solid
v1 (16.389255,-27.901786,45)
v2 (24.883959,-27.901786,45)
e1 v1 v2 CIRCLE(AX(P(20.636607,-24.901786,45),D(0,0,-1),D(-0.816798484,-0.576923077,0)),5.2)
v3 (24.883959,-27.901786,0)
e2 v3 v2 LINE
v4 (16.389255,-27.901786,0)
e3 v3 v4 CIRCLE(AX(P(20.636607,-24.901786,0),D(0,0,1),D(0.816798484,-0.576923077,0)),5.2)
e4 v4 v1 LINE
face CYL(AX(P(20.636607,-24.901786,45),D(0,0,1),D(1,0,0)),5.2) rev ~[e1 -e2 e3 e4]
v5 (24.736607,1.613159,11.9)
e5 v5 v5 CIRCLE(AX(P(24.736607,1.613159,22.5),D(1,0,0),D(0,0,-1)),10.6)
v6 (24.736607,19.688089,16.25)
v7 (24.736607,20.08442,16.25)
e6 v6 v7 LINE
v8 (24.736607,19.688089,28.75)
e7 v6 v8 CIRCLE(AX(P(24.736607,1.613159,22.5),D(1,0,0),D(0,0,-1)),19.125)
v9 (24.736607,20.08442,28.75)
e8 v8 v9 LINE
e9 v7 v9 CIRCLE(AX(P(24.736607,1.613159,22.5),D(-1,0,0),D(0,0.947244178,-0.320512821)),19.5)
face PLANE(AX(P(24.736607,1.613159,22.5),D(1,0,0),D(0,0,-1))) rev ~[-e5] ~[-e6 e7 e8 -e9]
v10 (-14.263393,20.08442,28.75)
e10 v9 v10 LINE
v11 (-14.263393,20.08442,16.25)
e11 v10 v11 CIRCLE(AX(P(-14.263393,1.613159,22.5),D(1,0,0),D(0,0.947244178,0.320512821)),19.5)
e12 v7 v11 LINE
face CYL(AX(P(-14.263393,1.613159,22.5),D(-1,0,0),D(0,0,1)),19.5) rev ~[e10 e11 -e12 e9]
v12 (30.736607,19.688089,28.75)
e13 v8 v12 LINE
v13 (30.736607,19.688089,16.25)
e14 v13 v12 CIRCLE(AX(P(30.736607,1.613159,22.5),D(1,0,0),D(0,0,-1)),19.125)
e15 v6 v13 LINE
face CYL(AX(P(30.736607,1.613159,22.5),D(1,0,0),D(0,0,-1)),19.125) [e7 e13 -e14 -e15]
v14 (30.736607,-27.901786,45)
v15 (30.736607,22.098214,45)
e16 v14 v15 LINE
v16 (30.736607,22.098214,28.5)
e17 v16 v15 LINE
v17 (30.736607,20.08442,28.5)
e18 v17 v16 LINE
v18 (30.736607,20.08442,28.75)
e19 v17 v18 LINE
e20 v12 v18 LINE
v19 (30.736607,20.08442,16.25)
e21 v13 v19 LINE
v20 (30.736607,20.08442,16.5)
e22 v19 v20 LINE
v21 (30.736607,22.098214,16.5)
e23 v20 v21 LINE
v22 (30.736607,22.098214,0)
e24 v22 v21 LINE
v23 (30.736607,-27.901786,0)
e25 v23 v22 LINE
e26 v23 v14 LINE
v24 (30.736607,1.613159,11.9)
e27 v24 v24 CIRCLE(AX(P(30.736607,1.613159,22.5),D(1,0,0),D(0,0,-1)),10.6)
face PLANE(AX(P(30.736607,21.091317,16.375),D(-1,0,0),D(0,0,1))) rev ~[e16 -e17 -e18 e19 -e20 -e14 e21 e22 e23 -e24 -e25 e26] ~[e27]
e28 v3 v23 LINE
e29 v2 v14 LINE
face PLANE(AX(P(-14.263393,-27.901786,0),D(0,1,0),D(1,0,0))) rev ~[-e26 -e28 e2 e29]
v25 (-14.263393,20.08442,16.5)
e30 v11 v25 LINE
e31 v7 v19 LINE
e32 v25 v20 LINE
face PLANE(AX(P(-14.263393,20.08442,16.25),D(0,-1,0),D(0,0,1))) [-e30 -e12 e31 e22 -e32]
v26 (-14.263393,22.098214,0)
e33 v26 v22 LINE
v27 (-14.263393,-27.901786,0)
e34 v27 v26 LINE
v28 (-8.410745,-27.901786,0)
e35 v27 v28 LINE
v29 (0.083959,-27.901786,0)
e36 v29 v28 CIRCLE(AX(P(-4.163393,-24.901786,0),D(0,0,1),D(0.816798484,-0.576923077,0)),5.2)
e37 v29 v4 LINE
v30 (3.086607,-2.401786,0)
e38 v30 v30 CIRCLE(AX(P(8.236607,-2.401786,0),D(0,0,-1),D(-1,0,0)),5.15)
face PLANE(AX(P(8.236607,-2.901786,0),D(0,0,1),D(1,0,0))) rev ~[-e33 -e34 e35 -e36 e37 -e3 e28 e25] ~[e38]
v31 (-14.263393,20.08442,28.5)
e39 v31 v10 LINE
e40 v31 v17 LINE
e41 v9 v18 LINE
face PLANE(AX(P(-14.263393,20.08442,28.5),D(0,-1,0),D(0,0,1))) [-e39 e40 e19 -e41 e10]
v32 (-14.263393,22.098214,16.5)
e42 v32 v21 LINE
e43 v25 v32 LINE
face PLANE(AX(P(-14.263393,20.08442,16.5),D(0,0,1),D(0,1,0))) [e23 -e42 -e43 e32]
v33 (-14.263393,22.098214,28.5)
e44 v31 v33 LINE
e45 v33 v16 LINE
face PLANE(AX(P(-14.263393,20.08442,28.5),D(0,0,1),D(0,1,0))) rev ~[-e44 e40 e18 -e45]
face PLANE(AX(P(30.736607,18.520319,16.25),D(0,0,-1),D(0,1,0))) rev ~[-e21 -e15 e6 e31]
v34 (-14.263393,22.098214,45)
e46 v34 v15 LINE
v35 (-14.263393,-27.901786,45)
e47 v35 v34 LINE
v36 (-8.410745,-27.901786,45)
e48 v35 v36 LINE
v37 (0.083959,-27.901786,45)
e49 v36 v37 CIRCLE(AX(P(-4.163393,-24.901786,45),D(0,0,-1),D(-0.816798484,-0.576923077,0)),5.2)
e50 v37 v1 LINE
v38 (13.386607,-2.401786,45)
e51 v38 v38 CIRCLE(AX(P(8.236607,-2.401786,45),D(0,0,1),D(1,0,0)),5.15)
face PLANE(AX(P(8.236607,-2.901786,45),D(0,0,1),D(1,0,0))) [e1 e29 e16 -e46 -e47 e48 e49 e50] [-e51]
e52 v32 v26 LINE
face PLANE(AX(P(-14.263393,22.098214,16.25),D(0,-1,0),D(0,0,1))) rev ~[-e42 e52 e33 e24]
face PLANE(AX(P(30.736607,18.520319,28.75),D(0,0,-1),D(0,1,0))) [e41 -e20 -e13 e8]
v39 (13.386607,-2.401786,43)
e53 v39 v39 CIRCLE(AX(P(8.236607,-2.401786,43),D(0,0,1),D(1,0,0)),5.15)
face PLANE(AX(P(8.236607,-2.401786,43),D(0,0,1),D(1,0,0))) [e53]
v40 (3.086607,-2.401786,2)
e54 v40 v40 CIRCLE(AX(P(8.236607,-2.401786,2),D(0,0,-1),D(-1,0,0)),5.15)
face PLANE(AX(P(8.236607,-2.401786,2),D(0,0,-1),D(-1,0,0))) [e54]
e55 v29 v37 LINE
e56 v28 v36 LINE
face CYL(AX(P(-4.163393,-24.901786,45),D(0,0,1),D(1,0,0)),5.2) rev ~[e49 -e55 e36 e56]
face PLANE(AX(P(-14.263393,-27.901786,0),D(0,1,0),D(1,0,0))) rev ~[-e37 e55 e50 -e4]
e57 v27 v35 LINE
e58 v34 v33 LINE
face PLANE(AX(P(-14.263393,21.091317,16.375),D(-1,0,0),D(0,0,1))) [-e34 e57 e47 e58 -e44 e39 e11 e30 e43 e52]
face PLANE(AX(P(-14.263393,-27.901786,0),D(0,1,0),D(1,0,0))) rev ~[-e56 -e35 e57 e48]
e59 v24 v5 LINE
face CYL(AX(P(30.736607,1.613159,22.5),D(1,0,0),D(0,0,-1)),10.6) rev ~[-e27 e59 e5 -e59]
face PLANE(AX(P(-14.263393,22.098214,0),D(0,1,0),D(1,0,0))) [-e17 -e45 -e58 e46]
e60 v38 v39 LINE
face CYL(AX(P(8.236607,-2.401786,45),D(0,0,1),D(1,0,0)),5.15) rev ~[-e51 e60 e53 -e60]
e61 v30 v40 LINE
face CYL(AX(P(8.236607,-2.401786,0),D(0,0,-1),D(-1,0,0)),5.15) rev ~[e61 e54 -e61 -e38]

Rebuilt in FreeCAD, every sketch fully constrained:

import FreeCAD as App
import Part
import Sketcher

doc = App.newDocument("Part")
body = doc.addObject("PartDesign::Body", "Body")

# Sketch on XY plane
sketch1 = doc.addObject("Sketcher::SketchObject", "Sketch")
body.addObject(sketch1)
sketch1.AttachmentSupport = (doc.XY_Plane, [""])
sketch1.MapMode = "FlatFace"
sketch1.addGeometry([
    Part.LineSegment(App.Vector(-14, 22, 0), App.Vector(-14, -28, 0)),
    Part.LineSegment(App.Vector(-14, -28, 0), App.Vector(31, -28, 0)),
    Part.LineSegment(App.Vector(31, -28, 0), App.Vector(31, 22, 0)),
    Part.LineSegment(App.Vector(31, 22, 0), App.Vector(-14, 22, 0)),
], False)
sketch1.addConstraint([
    Sketcher.Constraint("Coincident", 0, 2, 1, 1),
    Sketcher.Constraint("Coincident", 1, 2, 2, 1),
    Sketcher.Constraint("Coincident", 2, 2, 3, 1),
    Sketcher.Constraint("Coincident", 3, 2, 0, 1),
    Sketcher.Constraint("Vertical", 0),
    Sketcher.Constraint("Horizontal", 1),
    Sketcher.Constraint("Vertical", 2),
    Sketcher.Constraint("Horizontal", 3),
    Sketcher.Constraint("DistanceX", 1, 1, 1, 2, 45.0),
    Sketcher.Constraint("DistanceY", 0, 2, 0, 1, 50.0),
    Sketcher.Constraint("DistanceX", 0, 2, -1, 1, 14.263393),
    Sketcher.Constraint("DistanceY", 0, 2, -1, 1, 27.901786),
])
pad1 = doc.addObject("PartDesign::Pad", "Pad")
body.addObject(pad1)
pad1.Profile = sketch1
pad1.Length = 45

# Sketch on XY plane
sketch2 = doc.addObject("Sketcher::SketchObject", "Sketch001")
body.addObject(sketch2)
sketch2.AttachmentSupport = (doc.XY_Plane, [""])
sketch2.MapMode = "FlatFace"
sketch2.AttachmentOffset = App.Placement(App.Vector(0, 0, 45), App.Rotation())
sketch2.addGeometry([
    Part.Circle(App.Vector(-4, -25, 0), App.Vector(0, 0, 1), 5),
    Part.Circle(App.Vector(21, -25, 0), App.Vector(0, 0, 1), 5),
], False)
sketch2.addConstraint([
    Sketcher.Constraint("Equal", 0, 1),
    Sketcher.Constraint("Horizontal", 0, 3, 1, 3),
    Sketcher.Constraint("Diameter", 0, 10.4),
    Sketcher.Constraint("DistanceX", 0, 3, 1, 3, 24.8),
    Sketcher.Constraint("DistanceX", 0, 3, -1, 1, 4.163393),
    Sketcher.Constraint("DistanceY", 0, 3, -1, 1, 24.901786),
])
pocket1 = doc.addObject("PartDesign::Pocket", "Pocket")
body.addObject(pocket1)
pocket1.Profile = sketch2
pocket1.Length = 45

# Sketch on YZ plane
sketch3 = doc.addObject("Sketcher::SketchObject", "Sketch002")
body.addObject(sketch3)
sketch3.AttachmentSupport = (doc.YZ_Plane, [""])
sketch3.MapMode = "FlatFace"
sketch3.AttachmentOffset = App.Placement(App.Vector(0, 0, 30.736607), App.Rotation())
sketch3.addGeometry(Part.Circle(App.Vector(2, 22, 0), App.Vector(0, 0, 1), 19), False)
sketch3.addConstraint([
    Sketcher.Constraint("Diameter", 0, 38.25),
    Sketcher.Constraint("DistanceY", -1, 1, 0, 3, 22.5),
    Sketcher.Constraint("DistanceX", -1, 1, 0, 3, 1.613159),
])
pocket2 = doc.addObject("PartDesign::Pocket", "Pocket001")
body.addObject(pocket2)
pocket2.Profile = sketch3
pocket2.Length = 45

# Sketch on YZ plane
sketch4 = doc.addObject("Sketcher::SketchObject", "Sketch003")
body.addObject(sketch4)
sketch4.AttachmentSupport = (doc.YZ_Plane, [""])
sketch4.MapMode = "FlatFace"
sketch4.AttachmentOffset = App.Placement(App.Vector(0, 0, 30.736607), App.Rotation())
sketch4.addGeometry([
    Part.LineSegment(App.Vector(23.4, 28.8, 0), App.Vector(18.5, 28.8, 0)),
    Part.LineSegment(App.Vector(18.5, 28.8, 0), App.Vector(18.5, 16.2, 0)),
    Part.LineSegment(App.Vector(18.5, 16.2, 0), App.Vector(23.4, 16.2, 0)),
    Part.LineSegment(App.Vector(23.4, 16.2, 0), App.Vector(23.4, 28.8, 0)),
], False)
sketch4.addConstraint([
    Sketcher.Constraint("Coincident", 0, 2, 1, 1),
    Sketcher.Constraint("Coincident", 1, 2, 2, 1),
    Sketcher.Constraint("Coincident", 2, 2, 3, 1),
    Sketcher.Constraint("Coincident", 3, 2, 0, 1),
    Sketcher.Constraint("Horizontal", 0),
    Sketcher.Constraint("Vertical", 1),
    Sketcher.Constraint("Horizontal", 2),
    Sketcher.Constraint("Vertical", 3),
    Sketcher.Constraint("DistanceY", 1, 2, 1, 1, 12.5),
    Sketcher.Constraint("DistanceY", -1, 1, 0, 2, 28.75),
    Sketcher.Constraint("DistanceX", 0, 2, 0, 1, 4.851403),
    Sketcher.Constraint("DistanceX", -1, 1, 0, 2, 18.520319),
])
pocket3 = doc.addObject("PartDesign::Pocket", "Pocket002")
body.addObject(pocket3)
pocket3.Profile = sketch4
pocket3.Length = 45

# Sketch on YZ plane
sketch5 = doc.addObject("Sketcher::SketchObject", "Sketch004")
body.addObject(sketch5)
sketch5.AttachmentSupport = (doc.YZ_Plane, [""])
sketch5.MapMode = "FlatFace"
sketch5.AttachmentOffset = App.Placement(App.Vector(0, 0, 30.736607), App.Rotation())
sketch5.addGeometry(Part.Circle(App.Vector(2, 22, 0), App.Vector(0, 0, 1), 19), False)
sketch5.addConstraint([
    Sketcher.Constraint("Diameter", 0, 38.25),
    Sketcher.Constraint("DistanceY", -1, 1, 0, 3, 22.5),
    Sketcher.Constraint("DistanceX", -1, 1, 0, 3, 1.613159),
])
pad2 = doc.addObject("PartDesign::Pad", "Pad001")
body.addObject(pad2)
pad2.Profile = sketch5
pad2.Length = 6
pad2.Reversed = True

# Sketch on YZ plane
sketch6 = doc.addObject("Sketcher::SketchObject", "Sketch005")
body.addObject(sketch6)
sketch6.AttachmentSupport = (doc.YZ_Plane, [""])
sketch6.MapMode = "FlatFace"
sketch6.AttachmentOffset = App.Placement(App.Vector(0, 0, 30.736607), App.Rotation())
sketch6.addGeometry(Part.Circle(App.Vector(2, 22, 0), App.Vector(0, 0, 1), 11), False)
sketch6.addConstraint([
    Sketcher.Constraint("Diameter", 0, 21.2),
    Sketcher.Constraint("DistanceY", -1, 1, 0, 3, 22.5),
    Sketcher.Constraint("DistanceX", -1, 1, 0, 3, 1.613159),
])
pocket4 = doc.addObject("PartDesign::Pocket", "Pocket003")
body.addObject(pocket4)
pocket4.Profile = sketch6
pocket4.Length = 6

# Sketch on YZ plane
sketch7 = doc.addObject("Sketcher::SketchObject", "Sketch006")
body.addObject(sketch7)
sketch7.AttachmentSupport = (doc.YZ_Plane, [""])
sketch7.MapMode = "FlatFace"
sketch7.AttachmentOffset = App.Placement(App.Vector(0, 0, -14.263393), App.Rotation())
sketch7.addGeometry(Part.Circle(App.Vector(2, 22, 0), App.Vector(0, 0, 1), 20), False)
sketch7.addConstraint([
    Sketcher.Constraint("Diameter", 0, 39.0),
    Sketcher.Constraint("DistanceY", -1, 1, 0, 3, 22.5),
    Sketcher.Constraint("DistanceX", -1, 1, 0, 3, 1.613159),
])
pocket5 = doc.addObject("PartDesign::Pocket", "Pocket004")
body.addObject(pocket5)
pocket5.Profile = sketch7
pocket5.Length = 39
pocket5.Reversed = True

# Sketch on YZ plane
sketch8 = doc.addObject("Sketcher::SketchObject", "Sketch007")
body.addObject(sketch8)
sketch8.AttachmentSupport = (doc.YZ_Plane, [""])
sketch8.MapMode = "FlatFace"
sketch8.AttachmentOffset = App.Placement(App.Vector(0, 0, -14.263393), App.Rotation())
sketch8.addGeometry([
    Part.LineSegment(App.Vector(22.1, 16.25, 0), App.Vector(20.08, 16.25, 0)),  # 0
    Part.LineSegment(App.Vector(20.08, 16.25, 0), App.Vector(20.08, 16.5, 0)),  # 1
    Part.LineSegment(App.Vector(20.08, 16.5, 0), App.Vector(22.1, 16.5, 0)),  # 2
    Part.LineSegment(App.Vector(22.1, 16.5, 0), App.Vector(22.1, 16.25, 0)),  # 3
    Part.LineSegment(App.Vector(22.1, 28.5, 0), App.Vector(20.08, 28.5, 0)),  # 4
    Part.LineSegment(App.Vector(20.08, 28.5, 0), App.Vector(20.08, 28.75, 0)),  # 5
    Part.LineSegment(App.Vector(20.08, 28.75, 0), App.Vector(22.1, 28.75, 0)),  # 6
    Part.LineSegment(App.Vector(22.1, 28.75, 0), App.Vector(22.1, 28.5, 0)),  # 7
], False)
sketch8.addConstraint([
    Sketcher.Constraint("Coincident", 0, 2, 1, 1),
    Sketcher.Constraint("Coincident", 1, 2, 2, 1),
    Sketcher.Constraint("Coincident", 2, 2, 3, 1),
    Sketcher.Constraint("Coincident", 3, 2, 0, 1),
    Sketcher.Constraint("Coincident", 4, 2, 5, 1),
    Sketcher.Constraint("Coincident", 5, 2, 6, 1),
    Sketcher.Constraint("Coincident", 6, 2, 7, 1),
    Sketcher.Constraint("Coincident", 7, 2, 4, 1),
    Sketcher.Constraint("Horizontal", 0),
    Sketcher.Constraint("Vertical", 1),
    Sketcher.Constraint("Horizontal", 2),
    Sketcher.Constraint("Vertical", 3),
    Sketcher.Constraint("Horizontal", 4),
    Sketcher.Constraint("Vertical", 5),
    Sketcher.Constraint("Horizontal", 6),
    Sketcher.Constraint("Vertical", 7),
    Sketcher.Constraint("Vertical", 1, 2, 4, 2),
    Sketcher.Constraint("Vertical", 3, 2, 6, 2),
    Sketcher.Constraint("Equal", 3, 5),
    Sketcher.Constraint("DistanceY", 1, 2, 4, 2, 12.0),
    Sketcher.Constraint("DistanceY", 1, 1, 1, 2, 0.25),
    Sketcher.Constraint("DistanceY", -1, 1, 1, 2, 16.5),
    Sketcher.Constraint("DistanceX", 0, 2, 0, 1, 2.013794),
    Sketcher.Constraint("DistanceX", -1, 1, 0, 2, 20.08442),
])
pad3 = doc.addObject("PartDesign::Pad", "Pad002")
body.addObject(pad3)
pad3.Profile = sketch8
pad3.Length = 45

# Sketch on XY plane
sketch9 = doc.addObject("Sketcher::SketchObject", "Sketch008")
body.addObject(sketch9)
sketch9.AttachmentSupport = (doc.XY_Plane, [""])
sketch9.MapMode = "FlatFace"
sketch9.AttachmentOffset = App.Placement(App.Vector(0, 0, 45), App.Rotation())
sketch9.addGeometry(Part.Circle(App.Vector(8, -2, 0), App.Vector(0, 0, 1), 5), False)
sketch9.addConstraint([
    Sketcher.Constraint("Diameter", 0, 10.3),
    Sketcher.Constraint("DistanceX", -1, 1, 0, 3, 8.236607),
    Sketcher.Constraint("DistanceY", 0, 3, -1, 1, 2.401786),
])
pocket6 = doc.addObject("PartDesign::Pocket", "Pocket005")
body.addObject(pocket6)
pocket6.Profile = sketch9
pocket6.Length = 2

# Sketch on XY plane
sketch10 = doc.addObject("Sketcher::SketchObject", "Sketch009")
body.addObject(sketch10)
sketch10.AttachmentSupport = (doc.XY_Plane, [""])
sketch10.MapMode = "FlatFace"
sketch10.addGeometry(Part.Circle(App.Vector(8, -2, 0), App.Vector(0, 0, 1), 5), False)
sketch10.addConstraint([
    Sketcher.Constraint("Diameter", 0, 10.3),
    Sketcher.Constraint("DistanceX", -1, 1, 0, 3, 8.236607),
    Sketcher.Constraint("DistanceY", 0, 3, -1, 1, 2.401786),
])
pocket7 = doc.addObject("PartDesign::Pocket", "Pocket006")
body.addObject(pocket7)
pocket7.Profile = sketch10
pocket7.Length = 2
pocket7.Reversed = True

doc.recompute()
